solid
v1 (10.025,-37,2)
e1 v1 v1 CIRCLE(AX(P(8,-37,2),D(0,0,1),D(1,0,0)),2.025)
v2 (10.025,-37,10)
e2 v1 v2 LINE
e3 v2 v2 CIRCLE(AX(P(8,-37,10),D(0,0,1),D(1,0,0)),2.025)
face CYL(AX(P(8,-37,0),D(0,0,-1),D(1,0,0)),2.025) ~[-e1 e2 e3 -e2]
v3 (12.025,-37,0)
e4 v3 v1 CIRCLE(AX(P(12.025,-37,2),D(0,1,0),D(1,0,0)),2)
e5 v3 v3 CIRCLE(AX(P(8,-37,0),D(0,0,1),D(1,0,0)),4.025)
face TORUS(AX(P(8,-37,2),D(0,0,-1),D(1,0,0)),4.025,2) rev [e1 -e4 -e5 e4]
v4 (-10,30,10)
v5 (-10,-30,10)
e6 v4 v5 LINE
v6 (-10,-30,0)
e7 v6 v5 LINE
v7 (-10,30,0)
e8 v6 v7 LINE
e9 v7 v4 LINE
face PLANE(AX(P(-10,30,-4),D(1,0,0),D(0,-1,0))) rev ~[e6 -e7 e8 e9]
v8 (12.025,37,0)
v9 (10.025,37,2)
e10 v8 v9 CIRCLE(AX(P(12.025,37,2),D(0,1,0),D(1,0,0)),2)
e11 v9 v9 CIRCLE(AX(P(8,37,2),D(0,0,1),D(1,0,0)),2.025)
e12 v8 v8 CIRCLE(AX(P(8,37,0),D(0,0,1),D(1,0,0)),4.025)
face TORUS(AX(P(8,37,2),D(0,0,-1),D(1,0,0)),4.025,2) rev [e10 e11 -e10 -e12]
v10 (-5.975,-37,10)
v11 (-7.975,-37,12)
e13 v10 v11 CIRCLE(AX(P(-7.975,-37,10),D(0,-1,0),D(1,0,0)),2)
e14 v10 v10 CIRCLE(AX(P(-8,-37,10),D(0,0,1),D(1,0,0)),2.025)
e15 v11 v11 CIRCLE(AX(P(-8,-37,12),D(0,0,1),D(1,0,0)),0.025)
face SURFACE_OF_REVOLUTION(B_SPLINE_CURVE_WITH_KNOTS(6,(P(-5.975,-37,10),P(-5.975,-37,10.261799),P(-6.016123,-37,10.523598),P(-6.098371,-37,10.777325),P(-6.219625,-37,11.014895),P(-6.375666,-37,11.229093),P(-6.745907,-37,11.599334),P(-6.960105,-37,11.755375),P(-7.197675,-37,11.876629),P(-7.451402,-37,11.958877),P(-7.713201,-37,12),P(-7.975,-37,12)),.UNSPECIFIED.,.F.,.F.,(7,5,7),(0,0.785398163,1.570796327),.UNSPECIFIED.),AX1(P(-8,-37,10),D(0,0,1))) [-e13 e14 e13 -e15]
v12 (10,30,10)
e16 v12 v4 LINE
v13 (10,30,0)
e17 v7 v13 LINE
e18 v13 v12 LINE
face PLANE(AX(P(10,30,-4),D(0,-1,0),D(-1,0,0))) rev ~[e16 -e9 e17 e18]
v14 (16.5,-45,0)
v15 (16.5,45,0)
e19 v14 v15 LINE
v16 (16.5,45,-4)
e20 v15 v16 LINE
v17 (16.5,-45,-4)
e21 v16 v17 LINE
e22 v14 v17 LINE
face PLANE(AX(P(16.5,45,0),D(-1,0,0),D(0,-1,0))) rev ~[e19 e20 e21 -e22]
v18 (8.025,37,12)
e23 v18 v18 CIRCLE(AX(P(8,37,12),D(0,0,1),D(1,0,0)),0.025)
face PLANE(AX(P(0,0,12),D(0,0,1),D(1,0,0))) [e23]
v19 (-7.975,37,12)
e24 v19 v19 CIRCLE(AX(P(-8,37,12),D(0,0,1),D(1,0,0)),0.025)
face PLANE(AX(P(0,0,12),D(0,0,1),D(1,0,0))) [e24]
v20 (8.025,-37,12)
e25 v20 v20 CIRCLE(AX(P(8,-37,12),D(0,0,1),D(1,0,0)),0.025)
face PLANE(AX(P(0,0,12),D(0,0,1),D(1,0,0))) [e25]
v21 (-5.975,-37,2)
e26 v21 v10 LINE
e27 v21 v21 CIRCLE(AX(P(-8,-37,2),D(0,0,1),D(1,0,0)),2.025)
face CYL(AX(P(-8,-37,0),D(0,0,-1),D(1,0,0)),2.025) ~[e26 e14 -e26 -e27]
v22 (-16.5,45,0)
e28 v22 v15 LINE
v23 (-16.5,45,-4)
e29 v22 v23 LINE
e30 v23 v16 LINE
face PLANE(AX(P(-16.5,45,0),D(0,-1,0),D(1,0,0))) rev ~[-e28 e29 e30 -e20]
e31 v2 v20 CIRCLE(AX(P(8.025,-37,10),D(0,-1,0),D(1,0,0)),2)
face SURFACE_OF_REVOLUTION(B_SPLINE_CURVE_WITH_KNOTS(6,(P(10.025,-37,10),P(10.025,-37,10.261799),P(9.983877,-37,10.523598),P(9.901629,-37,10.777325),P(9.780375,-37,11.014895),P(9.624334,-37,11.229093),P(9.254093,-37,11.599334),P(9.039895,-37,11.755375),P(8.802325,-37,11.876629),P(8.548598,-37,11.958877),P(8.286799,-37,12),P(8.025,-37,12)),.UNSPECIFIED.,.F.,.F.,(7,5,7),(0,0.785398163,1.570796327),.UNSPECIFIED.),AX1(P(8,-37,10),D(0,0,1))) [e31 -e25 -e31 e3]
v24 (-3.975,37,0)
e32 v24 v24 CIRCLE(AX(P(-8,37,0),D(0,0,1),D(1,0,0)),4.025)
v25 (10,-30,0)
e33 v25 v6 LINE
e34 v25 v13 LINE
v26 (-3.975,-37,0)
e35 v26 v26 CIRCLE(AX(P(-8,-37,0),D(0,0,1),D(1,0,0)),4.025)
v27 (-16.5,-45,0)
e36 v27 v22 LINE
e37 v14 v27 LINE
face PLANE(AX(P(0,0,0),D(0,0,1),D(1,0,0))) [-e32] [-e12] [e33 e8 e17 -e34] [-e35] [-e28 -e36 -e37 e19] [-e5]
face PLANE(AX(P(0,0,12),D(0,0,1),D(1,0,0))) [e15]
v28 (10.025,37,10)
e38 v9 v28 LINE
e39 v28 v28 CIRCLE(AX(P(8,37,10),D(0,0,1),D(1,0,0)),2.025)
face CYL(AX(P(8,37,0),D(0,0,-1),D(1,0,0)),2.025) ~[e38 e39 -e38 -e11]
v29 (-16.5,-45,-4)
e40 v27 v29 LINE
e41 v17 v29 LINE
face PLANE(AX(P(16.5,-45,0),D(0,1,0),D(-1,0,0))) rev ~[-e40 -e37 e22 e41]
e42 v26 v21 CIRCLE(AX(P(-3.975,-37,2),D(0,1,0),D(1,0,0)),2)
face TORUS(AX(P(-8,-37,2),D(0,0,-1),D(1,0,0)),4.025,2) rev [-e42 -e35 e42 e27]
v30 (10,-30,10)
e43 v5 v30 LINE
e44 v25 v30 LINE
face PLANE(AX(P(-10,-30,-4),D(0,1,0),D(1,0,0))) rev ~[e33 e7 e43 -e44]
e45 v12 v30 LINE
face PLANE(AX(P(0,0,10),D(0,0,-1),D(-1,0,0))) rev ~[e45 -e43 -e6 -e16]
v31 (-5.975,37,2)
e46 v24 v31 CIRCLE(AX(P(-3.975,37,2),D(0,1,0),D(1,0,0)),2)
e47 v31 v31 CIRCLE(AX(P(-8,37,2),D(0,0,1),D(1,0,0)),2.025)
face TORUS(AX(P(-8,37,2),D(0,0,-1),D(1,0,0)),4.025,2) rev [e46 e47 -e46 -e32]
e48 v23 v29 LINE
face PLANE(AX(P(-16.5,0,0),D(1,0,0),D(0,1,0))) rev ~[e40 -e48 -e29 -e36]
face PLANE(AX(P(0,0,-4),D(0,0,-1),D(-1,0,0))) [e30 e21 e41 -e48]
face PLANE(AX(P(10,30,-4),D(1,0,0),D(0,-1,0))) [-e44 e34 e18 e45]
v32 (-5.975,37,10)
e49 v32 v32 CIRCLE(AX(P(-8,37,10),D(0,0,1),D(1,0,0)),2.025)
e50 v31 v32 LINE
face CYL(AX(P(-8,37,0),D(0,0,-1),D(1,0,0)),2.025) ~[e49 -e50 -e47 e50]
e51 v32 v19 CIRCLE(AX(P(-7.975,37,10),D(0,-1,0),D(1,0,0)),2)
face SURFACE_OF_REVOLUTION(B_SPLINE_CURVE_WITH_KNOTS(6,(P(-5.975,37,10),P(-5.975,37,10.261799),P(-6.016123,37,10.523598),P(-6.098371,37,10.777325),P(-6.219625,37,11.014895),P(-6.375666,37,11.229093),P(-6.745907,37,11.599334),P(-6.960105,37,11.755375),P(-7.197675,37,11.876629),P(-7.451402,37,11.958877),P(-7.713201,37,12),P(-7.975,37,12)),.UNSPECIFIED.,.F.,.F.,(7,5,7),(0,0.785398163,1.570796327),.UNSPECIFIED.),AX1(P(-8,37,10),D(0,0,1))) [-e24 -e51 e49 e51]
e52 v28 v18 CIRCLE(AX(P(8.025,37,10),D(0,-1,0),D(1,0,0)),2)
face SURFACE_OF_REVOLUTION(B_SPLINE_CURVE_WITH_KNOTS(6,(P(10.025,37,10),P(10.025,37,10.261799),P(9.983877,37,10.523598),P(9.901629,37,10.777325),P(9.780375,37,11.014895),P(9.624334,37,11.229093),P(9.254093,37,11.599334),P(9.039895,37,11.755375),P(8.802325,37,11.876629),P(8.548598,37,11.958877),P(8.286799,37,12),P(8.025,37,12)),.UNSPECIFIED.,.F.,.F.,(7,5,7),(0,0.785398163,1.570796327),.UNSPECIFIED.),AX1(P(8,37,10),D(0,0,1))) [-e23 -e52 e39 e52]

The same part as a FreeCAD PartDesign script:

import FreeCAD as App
import Part
import Sketcher

V = App.Vector
Q = App.Units.Quantity


def edges_at(feature, points):
    """Names of the edges that pass closest to the given points."""
    edges = feature.Shape.Edges
    near = lambda p: min(range(len(edges)), key=lambda i: edges[i].distToShape(Part.Vertex(*p))[0])
    return sorted({f"Edge{near(p) + 1}" for p in points})

doc = App.newDocument("Part")
body = doc.addObject("PartDesign::Body", "Body")
body.AllowCompound = True

sketch1 = doc.addObject("Sketcher::SketchObject", "Sketch")
body.addObject(sketch1)
sketch1.AttachmentSupport = (doc.XY_Plane, [""])
sketch1.MapMode = "FlatFace"
sketch1.addGeometry(Part.Circle(V(-8, 37, 0), V(0, 0, 1), 2), False)
sketch1.addGeometry(Part.Circle(V(8, 37, 0), V(0, 0, 1), 2), False)
sketch1.addGeometry(Part.Circle(V(8, -37, 0), V(0, 0, 1), 2), False)
sketch1.addGeometry(Part.Circle(V(-8, -37, 0), V(0, 0, 1), 2), False)
sketch1.addConstraint(Sketcher.Constraint("Equal", 0, 1))
sketch1.addConstraint(Sketcher.Constraint("Equal", 1, 2))
sketch1.addConstraint(Sketcher.Constraint("Equal", 2, 3))
sketch1.addConstraint(Sketcher.Constraint("Symmetric", 0, 3, 2, 3, -1, 1))
sketch1.addConstraint(Sketcher.Constraint("Symmetric", 1, 3, 3, 3, -1, 1))
sketch1.addConstraint(Sketcher.Constraint("Symmetric", 0, 3, 1, 3, -2))
sketch1.addConstraint(Sketcher.Constraint("Diameter", 0, Q("4.05 mm")))
sketch1.addConstraint(Sketcher.Constraint("DistanceX", 0, 3, -1, 1, Q("8 mm")))
sketch1.addConstraint(Sketcher.Constraint("DistanceY", -1, 1, 0, 3, Q("37 mm")))
pad1 = doc.addObject("PartDesign::Pad", "Pad")
body.addObject(pad1)
pad1.Profile = sketch1
pad1.Length = 12

sketch2 = doc.addObject("Sketcher::SketchObject", "Sketch001")
body.addObject(sketch2)
sketch2.AttachmentSupport = (doc.XY_Plane, [""])
sketch2.MapMode = "FlatFace"
sketch2.addGeometry(Part.LineSegment(V(-16, 45, 0), V(-16, -45, 0)), False)
sketch2.addGeometry(Part.LineSegment(V(-16, -45, 0), V(16, -45, 0)), False)
sketch2.addGeometry(Part.LineSegment(V(16, -45, 0), V(16, 45, 0)), False)
sketch2.addGeometry(Part.LineSegment(V(16, 45, 0), V(-16, 45, 0)), False)
sketch2.addConstraint(Sketcher.Constraint("Coincident", 0, 2, 1, 1))
sketch2.addConstraint(Sketcher.Constraint("Coincident", 1, 2, 2, 1))
sketch2.addConstraint(Sketcher.Constraint("Coincident", 2, 2, 3, 1))
sketch2.addConstraint(Sketcher.Constraint("Coincident", 3, 2, 0, 1))
sketch2.addConstraint(Sketcher.Constraint("Vertical", 0))
sketch2.addConstraint(Sketcher.Constraint("Horizontal", 1))
sketch2.addConstraint(Sketcher.Constraint("Vertical", 2))
sketch2.addConstraint(Sketcher.Constraint("Horizontal", 3))
sketch2.addConstraint(Sketcher.Constraint("Symmetric", 0, 2, 2, 2, -1, 1))
sketch2.addConstraint(Sketcher.Constraint("DistanceX", 1, 1, 1, 2, Q("33 mm")))
sketch2.addConstraint(Sketcher.Constraint("DistanceY", 0, 2, 0, 1, Q("90 mm")))
pad2 = doc.addObject("PartDesign::Pad", "Pad001")
body.addObject(pad2)
pad2.Profile = sketch2
pad2.Length = 4
pad2.Reversed = True

sketch3 = doc.addObject("Sketcher::SketchObject", "Sketch002")
body.addObject(sketch3)
sketch3.AttachmentSupport = (doc.XY_Plane, [""])
sketch3.MapMode = "FlatFace"
sketch3.AttachmentOffset = App.Placement(V(0, 0, -4), App.Rotation())
sketch3.addGeometry(Part.LineSegment(V(-10, 30, 0), V(10, 30, 0)), False)
sketch3.addGeometry(Part.LineSegment(V(10, 30, 0), V(10, -30, 0)), False)
sketch3.addGeometry(Part.LineSegment(V(10, -30, 0), V(-10, -30, 0)), False)
sketch3.addGeometry(Part.LineSegment(V(-10, -30, 0), V(-10, 30, 0)), False)
sketch3.addConstraint(Sketcher.Constraint("Coincident", 0, 2, 1, 1))
sketch3.addConstraint(Sketcher.Constraint("Coincident", 1, 2, 2, 1))
sketch3.addConstraint(Sketcher.Constraint("Coincident", 2, 2, 3, 1))
sketch3.addConstraint(Sketcher.Constraint("Coincident", 3, 2, 0, 1))
sketch3.addConstraint(Sketcher.Constraint("Horizontal", 0))
sketch3.addConstraint(Sketcher.Constraint("Vertical", 1))
sketch3.addConstraint(Sketcher.Constraint("Horizontal", 2))
sketch3.addConstraint(Sketcher.Constraint("Vertical", 3))
sketch3.addConstraint(Sketcher.Constraint("Symmetric", 0, 2, 2, 2, -1, 1))
sketch3.addConstraint(Sketcher.Constraint("DistanceX", 0, 1, 0, 2, Q("20 mm")))
sketch3.addConstraint(Sketcher.Constraint("DistanceY", 1, 2, 1, 1, Q("60 mm")))
pad3 = doc.addObject("PartDesign::Pad", "Pad002")
body.addObject(pad3)
pad3.Profile = sketch3
pad3.Length = 14
doc.recompute()

fillet = doc.addObject("PartDesign::Fillet", "Fillet")
body.addObject(fillet)
fillet.Base = (pad3, edges_at(pad3, [
    (-10.025, -37, 12),
    (5.975, -37, 12),
    (5.975, 37, 12),
    (-10.025, 37, 12),
    (5.975, -37, 0),
    (-10.025, -37, 0),
    (5.975, 37, 0),
    (-10.025, 37, 0),
]))
fillet.Radius = 2

doc.recompute()
